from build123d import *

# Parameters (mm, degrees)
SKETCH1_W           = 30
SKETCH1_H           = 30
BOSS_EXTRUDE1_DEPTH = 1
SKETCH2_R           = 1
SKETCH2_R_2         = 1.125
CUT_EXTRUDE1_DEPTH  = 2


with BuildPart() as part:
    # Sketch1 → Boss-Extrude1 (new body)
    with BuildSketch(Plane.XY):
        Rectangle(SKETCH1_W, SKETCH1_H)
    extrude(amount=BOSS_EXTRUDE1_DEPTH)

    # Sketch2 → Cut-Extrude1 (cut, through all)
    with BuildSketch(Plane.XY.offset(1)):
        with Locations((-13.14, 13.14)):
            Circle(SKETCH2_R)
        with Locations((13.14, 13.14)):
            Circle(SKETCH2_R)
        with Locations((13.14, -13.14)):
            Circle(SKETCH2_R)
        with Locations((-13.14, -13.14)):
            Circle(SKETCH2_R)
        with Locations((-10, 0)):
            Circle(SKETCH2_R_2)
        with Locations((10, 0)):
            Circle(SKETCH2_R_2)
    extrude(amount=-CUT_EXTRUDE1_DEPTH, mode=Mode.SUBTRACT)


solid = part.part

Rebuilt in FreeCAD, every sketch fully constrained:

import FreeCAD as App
import Part
import Sketcher
Q = App.Units.Quantity


def add_polygon(sketch, points):
    """Adds a closed chain of lines whose ends are joined by coincident constraints."""
    first, n = sketch.GeometryCount, len(points)
    for a, b in zip(points, points[1:] + points[:1]):
        sketch.addGeometry(Part.LineSegment(App.Vector(*a, 0), App.Vector(*b, 0)), False)
    for i in range(n):
        sketch.addConstraint(Sketcher.Constraint("Coincident", first + i, 2, first + (i + 1) % n, 1))

doc = App.newDocument("Part")
body = doc.addObject("PartDesign::Body", "Body")

# Sketch on XY plane
sketch1 = doc.addObject("Sketcher::SketchObject", "Sketch")
body.addObject(sketch1)
sketch1.AttachmentSupport = (doc.XY_Plane, [""])
sketch1.MapMode = "FlatFace"
add_polygon(sketch1, [(-15, 15), (-15, -15), (15, -15), (15, 15)])  # lines 0-3
sketch1.addConstraint(Sketcher.Constraint("Vertical", 0))
sketch1.addConstraint(Sketcher.Constraint("Horizontal", 1))
sketch1.addConstraint(Sketcher.Constraint("Vertical", 2))
sketch1.addConstraint(Sketcher.Constraint("Horizontal", 3))
sketch1.addConstraint(Sketcher.Constraint("Symmetric", 0, 2, 2, 2, -1, 1))
sketch1.addConstraint(Sketcher.Constraint("Equal", 3, 0))
sketch1.addConstraint(Sketcher.Constraint("DistanceX", 1, 1, 1, 2, Q("30 mm")))
pad1 = doc.addObject("PartDesign::Pad", "Pad")
body.addObject(pad1)
pad1.Profile = sketch1
pad1.Length = 1

# Sketch on XY plane
sketch2 = doc.addObject("Sketcher::SketchObject", "Sketch001")
body.addObject(sketch2)
sketch2.AttachmentSupport = (doc.XY_Plane, [""])
sketch2.MapMode = "FlatFace"
sketch2.AttachmentOffset = App.Placement(App.Vector(0, 0, 1), App.Rotation())
sketch2.addGeometry(Part.Circle(App.Vector(-13.14, 13.14, 0), App.Vector(0, 0, 1), 1), False)
sketch2.addGeometry(Part.Circle(App.Vector(13.14, 13.14, 0), App.Vector(0, 0, 1), 1), False)
sketch2.addGeometry(Part.Circle(App.Vector(13.14, -13.14, 0), App.Vector(0, 0, 1), 1), False)
sketch2.addGeometry(Part.Circle(App.Vector(-13.14, -13.14, 0), App.Vector(0, 0, 1), 1), False)
sketch2.addGeometry(Part.Circle(App.Vector(-10, 0, 0), App.Vector(0, 0, 1), 1.125), False)
sketch2.addGeometry(Part.Circle(App.Vector(10, 0, 0), App.Vector(0, 0, 1), 1.125), False)
sketch2.addConstraint(Sketcher.Constraint("Equal", 0, 1))
sketch2.addConstraint(Sketcher.Constraint("Equal", 1, 2))
sketch2.addConstraint(Sketcher.Constraint("Equal", 2, 3))
sketch2.addConstraint(Sketcher.Constraint("Equal", 4, 5))
sketch2.addConstraint(Sketcher.Constraint("Symmetric", 0, 3, 2, 3, -1, 1))
sketch2.addConstraint(Sketcher.Constraint("Symmetric", 1, 3, 3, 3, -1, 1))
sketch2.addConstraint(Sketcher.Constraint("Symmetric", 4, 3, 5, 3, -1, 1))
sketch2.addConstraint(Sketcher.Constraint("Symmetric", 0, 3, 1, 3, -2))
sketch2.addConstraint(Sketcher.Constraint("PointOnObject", 4, 3, -1))
sketch2.addConstraint(Sketcher.Constraint("Diameter", 0, Q("2 mm")))
sketch2.addConstraint(Sketcher.Constraint("Diameter", 4, Q("2.25 mm")))
sketch2.addConstraint(Sketcher.Constraint("DistanceX", 4, 3, -1, 1, Q("10 mm")))
sketch2.addConstraint(Sketcher.Constraint("DistanceX", 0, 3, -1, 1, Q("13.14 mm")))
sketch2.addConstraint(Sketcher.Constraint("DistanceY", -1, 1, 0, 3, Q("13.14 mm")))
pocket1 = doc.addObject("PartDesign::Pocket", "Pocket")
body.addObject(pocket1)
pocket1.Profile = sketch2
pocket1.Type = "ThroughAll"

doc.recompute()
